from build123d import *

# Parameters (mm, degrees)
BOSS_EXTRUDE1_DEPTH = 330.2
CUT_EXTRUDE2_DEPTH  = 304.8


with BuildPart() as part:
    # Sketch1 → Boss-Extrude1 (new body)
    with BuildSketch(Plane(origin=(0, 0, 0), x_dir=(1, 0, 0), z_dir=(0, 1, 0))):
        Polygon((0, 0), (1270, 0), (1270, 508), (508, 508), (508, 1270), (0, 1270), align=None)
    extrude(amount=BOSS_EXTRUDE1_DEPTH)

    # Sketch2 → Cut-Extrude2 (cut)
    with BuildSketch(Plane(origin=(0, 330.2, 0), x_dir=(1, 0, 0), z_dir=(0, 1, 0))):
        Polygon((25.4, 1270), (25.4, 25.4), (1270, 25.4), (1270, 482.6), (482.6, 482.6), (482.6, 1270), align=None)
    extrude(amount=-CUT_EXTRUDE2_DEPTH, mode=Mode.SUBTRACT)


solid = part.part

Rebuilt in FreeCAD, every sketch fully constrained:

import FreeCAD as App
import Part
import Sketcher

V = App.Vector
Q = App.Units.Quantity


def add_polygon(sketch, points):
    """Adds a closed chain of lines whose ends are joined by coincident constraints."""
    first, n = sketch.GeometryCount, len(points)
    for a, b in zip(points, points[1:] + points[:1]):
        sketch.addGeometry(Part.LineSegment(App.Vector(*a, 0), App.Vector(*b, 0)), False)
    for i in range(n):
        sketch.addConstraint(Sketcher.Constraint("Coincident", first + i, 2, first + (i + 1) % n, 1))

doc = App.newDocument("Part")
params = doc.addObject("Spreadsheet::Sheet", "Params")
for row, (alias, value) in enumerate([
    ("sketch1_width", "50 in"),
    ("sketch1_width2", "30 in"),
    ("pad1_length", "13 in"),
    ("sketch2_width", "49 in"),
    ("sketch2_width2", "31 in"),
    ("pocket1_length", "12 in"),
], start=1):
    params.set(f"A{row}", alias)
    params.set(f"B{row}", "=" + value)
    params.setAlias(f"B{row}", alias)

body = doc.addObject("PartDesign::Body", "Body")

sketch1 = body.newObject("Sketcher::SketchObject", "Sketch")
sketch1.AttachmentSupport = (doc.getObject("XZ_Plane"), [""])
sketch1.MapMode = "FlatFace"
add_polygon(sketch1, [(0, 0), (1270, 0), (1270, -508), (508, -508), (508, -1270), (0, -1270)])
sketch1.addConstraint(Sketcher.Constraint("Horizontal", 0))
sketch1.addConstraint(Sketcher.Constraint("Vertical", 1))
sketch1.addConstraint(Sketcher.Constraint("Horizontal", 2))
sketch1.addConstraint(Sketcher.Constraint("Vertical", 3))
sketch1.addConstraint(Sketcher.Constraint("Horizontal", 4))
sketch1.addConstraint(Sketcher.Constraint("Vertical", 5))
sketch1.addConstraint(Sketcher.Constraint("Coincident", 5, 2, -1, 1))
sketch1.addConstraint(Sketcher.Constraint("Equal", 4, 1))
sketch1.addConstraint(Sketcher.Constraint("Equal", 2, 3))
sketch1.addConstraint(Sketcher.Constraint("DistanceX", 0, 1, 0, 2, Q("50 in")))
sketch1.addConstraint(Sketcher.Constraint("DistanceX", 2, 2, 2, 1, Q("30 in")))
sketch1.setExpression("Constraints[15]", "Params.sketch1_width")
sketch1.setExpression("Constraints[16]", "Params.sketch1_width2")
pad1 = body.newObject("PartDesign::Pad", "Pad")
pad1.Profile = sketch1
pad1.setExpression("Length", "Params.pad1_length")
pad1.Reversed = True

sketch2 = body.newObject("Sketcher::SketchObject", "Sketch001")
sketch2.AttachmentSupport = (doc.getObject("XZ_Plane"), [""])
sketch2.MapMode = "FlatFace"
sketch2.AttachmentOffset = App.Placement(V(0, 0, -13 * 25.4), App.Rotation())
add_polygon(sketch2, [(25, -1270), (25, -25), (1270, -25), (1270, -483), (483, -483), (483, -1270)])
sketch2.addConstraint(Sketcher.Constraint("Vertical", 0))
sketch2.addConstraint(Sketcher.Constraint("Horizontal", 1))
sketch2.addConstraint(Sketcher.Constraint("Vertical", 2))
sketch2.addConstraint(Sketcher.Constraint("Horizontal", 3))
sketch2.addConstraint(Sketcher.Constraint("Vertical", 4))
sketch2.addConstraint(Sketcher.Constraint("Horizontal", 5))
sketch2.addConstraint(Sketcher.Constraint("Equal", 1, 0))
sketch2.addConstraint(Sketcher.Constraint("Equal", 5, 2))
sketch2.addConstraint(Sketcher.Constraint("DistanceX", 1, 1, 1, 2, Q("49 in")))
sketch2.addConstraint(Sketcher.Constraint("DistanceX", 3, 2, 3, 1, Q("31 in")))
sketch2.addConstraint(Sketcher.Constraint("DistanceX", -1, 1, 0, 2, Q("1 in")))
sketch2.addConstraint(Sketcher.Constraint("DistanceY", 0, 2, -1, 1, Q("1 in")))
sketch2.setExpression("Constraints[14]", "Params.sketch2_width")
sketch2.setExpression("Constraints[15]", "Params.sketch2_width2")
pocket1 = body.newObject("PartDesign::Pocket", "Pocket")
pocket1.Profile = sketch2
pocket1.setExpression("Length", "Params.pocket1_length")
pocket1.Reversed = True

doc.recompute()
